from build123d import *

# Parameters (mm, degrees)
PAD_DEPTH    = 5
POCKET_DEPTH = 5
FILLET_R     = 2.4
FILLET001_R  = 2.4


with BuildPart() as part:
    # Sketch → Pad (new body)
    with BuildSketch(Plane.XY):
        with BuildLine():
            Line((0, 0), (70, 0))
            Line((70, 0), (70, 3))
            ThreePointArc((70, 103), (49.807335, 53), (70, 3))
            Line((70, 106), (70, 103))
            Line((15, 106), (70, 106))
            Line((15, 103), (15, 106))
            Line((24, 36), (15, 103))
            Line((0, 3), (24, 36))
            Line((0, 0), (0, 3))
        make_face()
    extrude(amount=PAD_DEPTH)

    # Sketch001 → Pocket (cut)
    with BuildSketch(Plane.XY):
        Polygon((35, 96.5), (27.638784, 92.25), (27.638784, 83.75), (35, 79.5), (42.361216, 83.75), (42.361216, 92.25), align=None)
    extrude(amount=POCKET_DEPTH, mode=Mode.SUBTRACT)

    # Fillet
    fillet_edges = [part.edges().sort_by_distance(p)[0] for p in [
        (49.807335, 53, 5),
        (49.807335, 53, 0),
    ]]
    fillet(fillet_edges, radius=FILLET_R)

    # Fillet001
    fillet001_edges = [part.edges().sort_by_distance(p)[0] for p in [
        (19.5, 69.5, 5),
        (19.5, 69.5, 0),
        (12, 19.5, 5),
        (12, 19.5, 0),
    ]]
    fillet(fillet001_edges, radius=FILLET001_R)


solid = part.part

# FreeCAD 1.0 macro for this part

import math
import FreeCAD as App
import Part
import Sketcher
Q = App.Units.Quantity


def edges_at(feature, points):
    """Names of the edges that pass closest to the given points."""
    edges = feature.Shape.Edges
    near = lambda p: min(range(len(edges)), key=lambda i: edges[i].distToShape(Part.Vertex(*p))[0])
    return sorted({f"Edge{near(p) + 1}" for p in points})


def add_polygon(sketch, points):
    """Adds a closed chain of lines whose ends are joined by coincident constraints."""
    first, n = sketch.GeometryCount, len(points)
    for a, b in zip(points, points[1:] + points[:1]):
        sketch.addGeometry(Part.LineSegment(App.Vector(*a, 0), App.Vector(*b, 0)), False)
    for i in range(n):
        sketch.addConstraint(Sketcher.Constraint("Coincident", first + i, 2, first + (i + 1) % n, 1))

doc = App.newDocument("Part")
params = doc.addObject("Spreadsheet::Sheet", "Params")
for row, (alias, value) in enumerate([
    ("sketch1_radius", "71.999999 mm"),
    ("sketch1_width", "70 mm"),
    ("sketch1_width2", "55 mm"),
    ("sketch1_height", "3 mm"),
    ("pad1_length", "5 mm"),
    ("sketch2_height", "8.5 mm"),
    ("pocket1_length", "5 mm"),
    ("fillet_radius", "2.4 mm"),
    ("fillet2_radius", "2.4 mm"),
], start=1):
    params.set(f"A{row}", alias)
    params.set(f"B{row}", "=" + value)
    params.setAlias(f"B{row}", alias)

body = doc.addObject("PartDesign::Body", "Body")

# Sketch on XY plane
sketch1 = body.newObject("Sketcher::SketchObject", "Sketch")
sketch1.AttachmentSupport = (doc.getObject("XY_Plane"), [""])
sketch1.MapMode = "FlatFace"
sketch1.addGeometry([
    Part.LineSegment(App.Vector(0, 0, 0), App.Vector(70, 0, 0)),  # 0
    Part.LineSegment(App.Vector(70, 0, 0), App.Vector(70, 3, 0)),  # 1
    Part.ArcOfCircle(Part.Circle(App.Vector(121.8, 53, 0), App.Vector(0, 0, 1), 72), math.radians(136), math.radians(224)),  # 2
    Part.LineSegment(App.Vector(70, 103, 0), App.Vector(70, 106, 0)),  # 3
    Part.LineSegment(App.Vector(70, 106, 0), App.Vector(15, 106, 0)),  # 4
    Part.LineSegment(App.Vector(15, 106, 0), App.Vector(15, 103, 0)),  # 5
    Part.LineSegment(App.Vector(15, 103, 0), App.Vector(24, 36, 0)),  # 6
    Part.LineSegment(App.Vector(24, 36, 0), App.Vector(0, 3, 0)),  # 7
    Part.LineSegment(App.Vector(0, 3, 0), App.Vector(0, 0, 0)),  # 8
], False)
sketch1.addConstraint([
    Sketcher.Constraint("Coincident", 0, 2, 1, 1),
    Sketcher.Constraint("Coincident", 1, 2, 2, 2),
    Sketcher.Constraint("Coincident", 2, 1, 3, 1),
    Sketcher.Constraint("Coincident", 3, 2, 4, 1),
    Sketcher.Constraint("Coincident", 4, 2, 5, 1),
    Sketcher.Constraint("Coincident", 5, 2, 6, 1),
    Sketcher.Constraint("Coincident", 6, 2, 7, 1),
    Sketcher.Constraint("Coincident", 7, 2, 8, 1),
    Sketcher.Constraint("Coincident", 8, 2, 0, 1),
    Sketcher.Constraint("Horizontal", 0),
    Sketcher.Constraint("Vertical", 1),
    Sketcher.Constraint("Vertical", 3),
    Sketcher.Constraint("Horizontal", 4),
    Sketcher.Constraint("Vertical", 5),
    Sketcher.Constraint("Vertical", 8),
    Sketcher.Constraint("Coincident", 8, 2, -1, 1),
    Sketcher.Constraint("Horizontal", 2, 1, 5, 2),
    Sketcher.Constraint("Horizontal", 1, 2, 7, 2),
    Sketcher.Constraint("Vertical", 1, 2, 2, 1),
    Sketcher.Constraint("Equal", 1, 3),
    Sketcher.Constraint("Radius", 2, Q("71.999999 mm")),
    Sketcher.Constraint("DistanceX", 0, 1, 0, 2, Q("70 mm")),
    Sketcher.Constraint("DistanceX", 4, 2, 4, 1, Q("55 mm")),
    Sketcher.Constraint("DistanceY", 1, 1, 1, 2, Q("3 mm")),
    Sketcher.Constraint("DistanceY", -1, 1, 2, 3, Q("53 mm")),
    Sketcher.Constraint("DistanceX", -1, 1, 6, 2, Q("24 mm")),
    Sketcher.Constraint("DistanceY", -1, 1, 6, 2, Q("36 mm")),
])
sketch1.setExpression("Constraints[20]", "Params.sketch1_radius")
sketch1.setExpression("Constraints[21]", "Params.sketch1_width")
sketch1.setExpression("Constraints[22]", "Params.sketch1_width2")
sketch1.setExpression("Constraints[23]", "Params.sketch1_height")
pad1 = body.newObject("PartDesign::Pad", "Pad")
pad1.Profile = sketch1
pad1.setExpression("Length", "Params.pad1_length")

# Sketch on XY plane
sketch2 = body.newObject("Sketcher::SketchObject", "Sketch001")
sketch2.AttachmentSupport = (doc.getObject("XY_Plane"), [""])
sketch2.MapMode = "FlatFace"
add_polygon(sketch2, [(35, 96), (28, 92), (28, 84), (35, 80), (42, 84), (42, 92)])  # lines 0-5
sketch2.addConstraint([
    Sketcher.Constraint("Vertical", 1),
    Sketcher.Constraint("Vertical", 4),
    Sketcher.Constraint("Parallel", 0, 3),
    Sketcher.Constraint("Parallel", 2, 5),
    Sketcher.Constraint("Horizontal", 1, 2, 3, 2),
    Sketcher.Constraint("Horizontal", 0, 2, 4, 2),
    Sketcher.Constraint("Vertical", 2, 2, 5, 2),
    Sketcher.Constraint("Angle", 0, Q("-150 deg")),
    Sketcher.Constraint("DistanceY", 1, 2, 1, 1, Q("8.5 mm")),
    Sketcher.Constraint("DistanceX", -1, 1, 2, 2, Q("35 mm")),
    Sketcher.Constraint("DistanceY", 2, 2, 5, 2, Q("17 mm")),
    Sketcher.Constraint("DistanceY", -1, 1, 2, 2, Q("79.5 mm")),
])
sketch2.setExpression("Constraints[14]", "Params.sketch2_height")
pocket1 = body.newObject("PartDesign::Pocket", "Pocket")
pocket1.Profile = sketch2
pocket1.setExpression("Length", "Params.pocket1_length")
pocket1.Reversed = True
doc.recompute()

fillet = body.newObject("PartDesign::Fillet", "Fillet")
fillet.Base = (pocket1, edges_at(pocket1, [(49.807, 53, 5), (49.807, 53, 0)]))
fillet.setExpression("Radius", "Params.fillet_radius")
doc.recompute()

fillet2 = body.newObject("PartDesign::Fillet", "Fillet001")
fillet2.Base = (fillet, edges_at(fillet, [
    (19.5, 69.5, 5),
    (19.5, 69.5, 0),
    (12, 19.5, 5),
    (12, 19.5, 0),
]))
fillet2.setExpression("Radius", "Params.fillet2_radius")

doc.recompute()
